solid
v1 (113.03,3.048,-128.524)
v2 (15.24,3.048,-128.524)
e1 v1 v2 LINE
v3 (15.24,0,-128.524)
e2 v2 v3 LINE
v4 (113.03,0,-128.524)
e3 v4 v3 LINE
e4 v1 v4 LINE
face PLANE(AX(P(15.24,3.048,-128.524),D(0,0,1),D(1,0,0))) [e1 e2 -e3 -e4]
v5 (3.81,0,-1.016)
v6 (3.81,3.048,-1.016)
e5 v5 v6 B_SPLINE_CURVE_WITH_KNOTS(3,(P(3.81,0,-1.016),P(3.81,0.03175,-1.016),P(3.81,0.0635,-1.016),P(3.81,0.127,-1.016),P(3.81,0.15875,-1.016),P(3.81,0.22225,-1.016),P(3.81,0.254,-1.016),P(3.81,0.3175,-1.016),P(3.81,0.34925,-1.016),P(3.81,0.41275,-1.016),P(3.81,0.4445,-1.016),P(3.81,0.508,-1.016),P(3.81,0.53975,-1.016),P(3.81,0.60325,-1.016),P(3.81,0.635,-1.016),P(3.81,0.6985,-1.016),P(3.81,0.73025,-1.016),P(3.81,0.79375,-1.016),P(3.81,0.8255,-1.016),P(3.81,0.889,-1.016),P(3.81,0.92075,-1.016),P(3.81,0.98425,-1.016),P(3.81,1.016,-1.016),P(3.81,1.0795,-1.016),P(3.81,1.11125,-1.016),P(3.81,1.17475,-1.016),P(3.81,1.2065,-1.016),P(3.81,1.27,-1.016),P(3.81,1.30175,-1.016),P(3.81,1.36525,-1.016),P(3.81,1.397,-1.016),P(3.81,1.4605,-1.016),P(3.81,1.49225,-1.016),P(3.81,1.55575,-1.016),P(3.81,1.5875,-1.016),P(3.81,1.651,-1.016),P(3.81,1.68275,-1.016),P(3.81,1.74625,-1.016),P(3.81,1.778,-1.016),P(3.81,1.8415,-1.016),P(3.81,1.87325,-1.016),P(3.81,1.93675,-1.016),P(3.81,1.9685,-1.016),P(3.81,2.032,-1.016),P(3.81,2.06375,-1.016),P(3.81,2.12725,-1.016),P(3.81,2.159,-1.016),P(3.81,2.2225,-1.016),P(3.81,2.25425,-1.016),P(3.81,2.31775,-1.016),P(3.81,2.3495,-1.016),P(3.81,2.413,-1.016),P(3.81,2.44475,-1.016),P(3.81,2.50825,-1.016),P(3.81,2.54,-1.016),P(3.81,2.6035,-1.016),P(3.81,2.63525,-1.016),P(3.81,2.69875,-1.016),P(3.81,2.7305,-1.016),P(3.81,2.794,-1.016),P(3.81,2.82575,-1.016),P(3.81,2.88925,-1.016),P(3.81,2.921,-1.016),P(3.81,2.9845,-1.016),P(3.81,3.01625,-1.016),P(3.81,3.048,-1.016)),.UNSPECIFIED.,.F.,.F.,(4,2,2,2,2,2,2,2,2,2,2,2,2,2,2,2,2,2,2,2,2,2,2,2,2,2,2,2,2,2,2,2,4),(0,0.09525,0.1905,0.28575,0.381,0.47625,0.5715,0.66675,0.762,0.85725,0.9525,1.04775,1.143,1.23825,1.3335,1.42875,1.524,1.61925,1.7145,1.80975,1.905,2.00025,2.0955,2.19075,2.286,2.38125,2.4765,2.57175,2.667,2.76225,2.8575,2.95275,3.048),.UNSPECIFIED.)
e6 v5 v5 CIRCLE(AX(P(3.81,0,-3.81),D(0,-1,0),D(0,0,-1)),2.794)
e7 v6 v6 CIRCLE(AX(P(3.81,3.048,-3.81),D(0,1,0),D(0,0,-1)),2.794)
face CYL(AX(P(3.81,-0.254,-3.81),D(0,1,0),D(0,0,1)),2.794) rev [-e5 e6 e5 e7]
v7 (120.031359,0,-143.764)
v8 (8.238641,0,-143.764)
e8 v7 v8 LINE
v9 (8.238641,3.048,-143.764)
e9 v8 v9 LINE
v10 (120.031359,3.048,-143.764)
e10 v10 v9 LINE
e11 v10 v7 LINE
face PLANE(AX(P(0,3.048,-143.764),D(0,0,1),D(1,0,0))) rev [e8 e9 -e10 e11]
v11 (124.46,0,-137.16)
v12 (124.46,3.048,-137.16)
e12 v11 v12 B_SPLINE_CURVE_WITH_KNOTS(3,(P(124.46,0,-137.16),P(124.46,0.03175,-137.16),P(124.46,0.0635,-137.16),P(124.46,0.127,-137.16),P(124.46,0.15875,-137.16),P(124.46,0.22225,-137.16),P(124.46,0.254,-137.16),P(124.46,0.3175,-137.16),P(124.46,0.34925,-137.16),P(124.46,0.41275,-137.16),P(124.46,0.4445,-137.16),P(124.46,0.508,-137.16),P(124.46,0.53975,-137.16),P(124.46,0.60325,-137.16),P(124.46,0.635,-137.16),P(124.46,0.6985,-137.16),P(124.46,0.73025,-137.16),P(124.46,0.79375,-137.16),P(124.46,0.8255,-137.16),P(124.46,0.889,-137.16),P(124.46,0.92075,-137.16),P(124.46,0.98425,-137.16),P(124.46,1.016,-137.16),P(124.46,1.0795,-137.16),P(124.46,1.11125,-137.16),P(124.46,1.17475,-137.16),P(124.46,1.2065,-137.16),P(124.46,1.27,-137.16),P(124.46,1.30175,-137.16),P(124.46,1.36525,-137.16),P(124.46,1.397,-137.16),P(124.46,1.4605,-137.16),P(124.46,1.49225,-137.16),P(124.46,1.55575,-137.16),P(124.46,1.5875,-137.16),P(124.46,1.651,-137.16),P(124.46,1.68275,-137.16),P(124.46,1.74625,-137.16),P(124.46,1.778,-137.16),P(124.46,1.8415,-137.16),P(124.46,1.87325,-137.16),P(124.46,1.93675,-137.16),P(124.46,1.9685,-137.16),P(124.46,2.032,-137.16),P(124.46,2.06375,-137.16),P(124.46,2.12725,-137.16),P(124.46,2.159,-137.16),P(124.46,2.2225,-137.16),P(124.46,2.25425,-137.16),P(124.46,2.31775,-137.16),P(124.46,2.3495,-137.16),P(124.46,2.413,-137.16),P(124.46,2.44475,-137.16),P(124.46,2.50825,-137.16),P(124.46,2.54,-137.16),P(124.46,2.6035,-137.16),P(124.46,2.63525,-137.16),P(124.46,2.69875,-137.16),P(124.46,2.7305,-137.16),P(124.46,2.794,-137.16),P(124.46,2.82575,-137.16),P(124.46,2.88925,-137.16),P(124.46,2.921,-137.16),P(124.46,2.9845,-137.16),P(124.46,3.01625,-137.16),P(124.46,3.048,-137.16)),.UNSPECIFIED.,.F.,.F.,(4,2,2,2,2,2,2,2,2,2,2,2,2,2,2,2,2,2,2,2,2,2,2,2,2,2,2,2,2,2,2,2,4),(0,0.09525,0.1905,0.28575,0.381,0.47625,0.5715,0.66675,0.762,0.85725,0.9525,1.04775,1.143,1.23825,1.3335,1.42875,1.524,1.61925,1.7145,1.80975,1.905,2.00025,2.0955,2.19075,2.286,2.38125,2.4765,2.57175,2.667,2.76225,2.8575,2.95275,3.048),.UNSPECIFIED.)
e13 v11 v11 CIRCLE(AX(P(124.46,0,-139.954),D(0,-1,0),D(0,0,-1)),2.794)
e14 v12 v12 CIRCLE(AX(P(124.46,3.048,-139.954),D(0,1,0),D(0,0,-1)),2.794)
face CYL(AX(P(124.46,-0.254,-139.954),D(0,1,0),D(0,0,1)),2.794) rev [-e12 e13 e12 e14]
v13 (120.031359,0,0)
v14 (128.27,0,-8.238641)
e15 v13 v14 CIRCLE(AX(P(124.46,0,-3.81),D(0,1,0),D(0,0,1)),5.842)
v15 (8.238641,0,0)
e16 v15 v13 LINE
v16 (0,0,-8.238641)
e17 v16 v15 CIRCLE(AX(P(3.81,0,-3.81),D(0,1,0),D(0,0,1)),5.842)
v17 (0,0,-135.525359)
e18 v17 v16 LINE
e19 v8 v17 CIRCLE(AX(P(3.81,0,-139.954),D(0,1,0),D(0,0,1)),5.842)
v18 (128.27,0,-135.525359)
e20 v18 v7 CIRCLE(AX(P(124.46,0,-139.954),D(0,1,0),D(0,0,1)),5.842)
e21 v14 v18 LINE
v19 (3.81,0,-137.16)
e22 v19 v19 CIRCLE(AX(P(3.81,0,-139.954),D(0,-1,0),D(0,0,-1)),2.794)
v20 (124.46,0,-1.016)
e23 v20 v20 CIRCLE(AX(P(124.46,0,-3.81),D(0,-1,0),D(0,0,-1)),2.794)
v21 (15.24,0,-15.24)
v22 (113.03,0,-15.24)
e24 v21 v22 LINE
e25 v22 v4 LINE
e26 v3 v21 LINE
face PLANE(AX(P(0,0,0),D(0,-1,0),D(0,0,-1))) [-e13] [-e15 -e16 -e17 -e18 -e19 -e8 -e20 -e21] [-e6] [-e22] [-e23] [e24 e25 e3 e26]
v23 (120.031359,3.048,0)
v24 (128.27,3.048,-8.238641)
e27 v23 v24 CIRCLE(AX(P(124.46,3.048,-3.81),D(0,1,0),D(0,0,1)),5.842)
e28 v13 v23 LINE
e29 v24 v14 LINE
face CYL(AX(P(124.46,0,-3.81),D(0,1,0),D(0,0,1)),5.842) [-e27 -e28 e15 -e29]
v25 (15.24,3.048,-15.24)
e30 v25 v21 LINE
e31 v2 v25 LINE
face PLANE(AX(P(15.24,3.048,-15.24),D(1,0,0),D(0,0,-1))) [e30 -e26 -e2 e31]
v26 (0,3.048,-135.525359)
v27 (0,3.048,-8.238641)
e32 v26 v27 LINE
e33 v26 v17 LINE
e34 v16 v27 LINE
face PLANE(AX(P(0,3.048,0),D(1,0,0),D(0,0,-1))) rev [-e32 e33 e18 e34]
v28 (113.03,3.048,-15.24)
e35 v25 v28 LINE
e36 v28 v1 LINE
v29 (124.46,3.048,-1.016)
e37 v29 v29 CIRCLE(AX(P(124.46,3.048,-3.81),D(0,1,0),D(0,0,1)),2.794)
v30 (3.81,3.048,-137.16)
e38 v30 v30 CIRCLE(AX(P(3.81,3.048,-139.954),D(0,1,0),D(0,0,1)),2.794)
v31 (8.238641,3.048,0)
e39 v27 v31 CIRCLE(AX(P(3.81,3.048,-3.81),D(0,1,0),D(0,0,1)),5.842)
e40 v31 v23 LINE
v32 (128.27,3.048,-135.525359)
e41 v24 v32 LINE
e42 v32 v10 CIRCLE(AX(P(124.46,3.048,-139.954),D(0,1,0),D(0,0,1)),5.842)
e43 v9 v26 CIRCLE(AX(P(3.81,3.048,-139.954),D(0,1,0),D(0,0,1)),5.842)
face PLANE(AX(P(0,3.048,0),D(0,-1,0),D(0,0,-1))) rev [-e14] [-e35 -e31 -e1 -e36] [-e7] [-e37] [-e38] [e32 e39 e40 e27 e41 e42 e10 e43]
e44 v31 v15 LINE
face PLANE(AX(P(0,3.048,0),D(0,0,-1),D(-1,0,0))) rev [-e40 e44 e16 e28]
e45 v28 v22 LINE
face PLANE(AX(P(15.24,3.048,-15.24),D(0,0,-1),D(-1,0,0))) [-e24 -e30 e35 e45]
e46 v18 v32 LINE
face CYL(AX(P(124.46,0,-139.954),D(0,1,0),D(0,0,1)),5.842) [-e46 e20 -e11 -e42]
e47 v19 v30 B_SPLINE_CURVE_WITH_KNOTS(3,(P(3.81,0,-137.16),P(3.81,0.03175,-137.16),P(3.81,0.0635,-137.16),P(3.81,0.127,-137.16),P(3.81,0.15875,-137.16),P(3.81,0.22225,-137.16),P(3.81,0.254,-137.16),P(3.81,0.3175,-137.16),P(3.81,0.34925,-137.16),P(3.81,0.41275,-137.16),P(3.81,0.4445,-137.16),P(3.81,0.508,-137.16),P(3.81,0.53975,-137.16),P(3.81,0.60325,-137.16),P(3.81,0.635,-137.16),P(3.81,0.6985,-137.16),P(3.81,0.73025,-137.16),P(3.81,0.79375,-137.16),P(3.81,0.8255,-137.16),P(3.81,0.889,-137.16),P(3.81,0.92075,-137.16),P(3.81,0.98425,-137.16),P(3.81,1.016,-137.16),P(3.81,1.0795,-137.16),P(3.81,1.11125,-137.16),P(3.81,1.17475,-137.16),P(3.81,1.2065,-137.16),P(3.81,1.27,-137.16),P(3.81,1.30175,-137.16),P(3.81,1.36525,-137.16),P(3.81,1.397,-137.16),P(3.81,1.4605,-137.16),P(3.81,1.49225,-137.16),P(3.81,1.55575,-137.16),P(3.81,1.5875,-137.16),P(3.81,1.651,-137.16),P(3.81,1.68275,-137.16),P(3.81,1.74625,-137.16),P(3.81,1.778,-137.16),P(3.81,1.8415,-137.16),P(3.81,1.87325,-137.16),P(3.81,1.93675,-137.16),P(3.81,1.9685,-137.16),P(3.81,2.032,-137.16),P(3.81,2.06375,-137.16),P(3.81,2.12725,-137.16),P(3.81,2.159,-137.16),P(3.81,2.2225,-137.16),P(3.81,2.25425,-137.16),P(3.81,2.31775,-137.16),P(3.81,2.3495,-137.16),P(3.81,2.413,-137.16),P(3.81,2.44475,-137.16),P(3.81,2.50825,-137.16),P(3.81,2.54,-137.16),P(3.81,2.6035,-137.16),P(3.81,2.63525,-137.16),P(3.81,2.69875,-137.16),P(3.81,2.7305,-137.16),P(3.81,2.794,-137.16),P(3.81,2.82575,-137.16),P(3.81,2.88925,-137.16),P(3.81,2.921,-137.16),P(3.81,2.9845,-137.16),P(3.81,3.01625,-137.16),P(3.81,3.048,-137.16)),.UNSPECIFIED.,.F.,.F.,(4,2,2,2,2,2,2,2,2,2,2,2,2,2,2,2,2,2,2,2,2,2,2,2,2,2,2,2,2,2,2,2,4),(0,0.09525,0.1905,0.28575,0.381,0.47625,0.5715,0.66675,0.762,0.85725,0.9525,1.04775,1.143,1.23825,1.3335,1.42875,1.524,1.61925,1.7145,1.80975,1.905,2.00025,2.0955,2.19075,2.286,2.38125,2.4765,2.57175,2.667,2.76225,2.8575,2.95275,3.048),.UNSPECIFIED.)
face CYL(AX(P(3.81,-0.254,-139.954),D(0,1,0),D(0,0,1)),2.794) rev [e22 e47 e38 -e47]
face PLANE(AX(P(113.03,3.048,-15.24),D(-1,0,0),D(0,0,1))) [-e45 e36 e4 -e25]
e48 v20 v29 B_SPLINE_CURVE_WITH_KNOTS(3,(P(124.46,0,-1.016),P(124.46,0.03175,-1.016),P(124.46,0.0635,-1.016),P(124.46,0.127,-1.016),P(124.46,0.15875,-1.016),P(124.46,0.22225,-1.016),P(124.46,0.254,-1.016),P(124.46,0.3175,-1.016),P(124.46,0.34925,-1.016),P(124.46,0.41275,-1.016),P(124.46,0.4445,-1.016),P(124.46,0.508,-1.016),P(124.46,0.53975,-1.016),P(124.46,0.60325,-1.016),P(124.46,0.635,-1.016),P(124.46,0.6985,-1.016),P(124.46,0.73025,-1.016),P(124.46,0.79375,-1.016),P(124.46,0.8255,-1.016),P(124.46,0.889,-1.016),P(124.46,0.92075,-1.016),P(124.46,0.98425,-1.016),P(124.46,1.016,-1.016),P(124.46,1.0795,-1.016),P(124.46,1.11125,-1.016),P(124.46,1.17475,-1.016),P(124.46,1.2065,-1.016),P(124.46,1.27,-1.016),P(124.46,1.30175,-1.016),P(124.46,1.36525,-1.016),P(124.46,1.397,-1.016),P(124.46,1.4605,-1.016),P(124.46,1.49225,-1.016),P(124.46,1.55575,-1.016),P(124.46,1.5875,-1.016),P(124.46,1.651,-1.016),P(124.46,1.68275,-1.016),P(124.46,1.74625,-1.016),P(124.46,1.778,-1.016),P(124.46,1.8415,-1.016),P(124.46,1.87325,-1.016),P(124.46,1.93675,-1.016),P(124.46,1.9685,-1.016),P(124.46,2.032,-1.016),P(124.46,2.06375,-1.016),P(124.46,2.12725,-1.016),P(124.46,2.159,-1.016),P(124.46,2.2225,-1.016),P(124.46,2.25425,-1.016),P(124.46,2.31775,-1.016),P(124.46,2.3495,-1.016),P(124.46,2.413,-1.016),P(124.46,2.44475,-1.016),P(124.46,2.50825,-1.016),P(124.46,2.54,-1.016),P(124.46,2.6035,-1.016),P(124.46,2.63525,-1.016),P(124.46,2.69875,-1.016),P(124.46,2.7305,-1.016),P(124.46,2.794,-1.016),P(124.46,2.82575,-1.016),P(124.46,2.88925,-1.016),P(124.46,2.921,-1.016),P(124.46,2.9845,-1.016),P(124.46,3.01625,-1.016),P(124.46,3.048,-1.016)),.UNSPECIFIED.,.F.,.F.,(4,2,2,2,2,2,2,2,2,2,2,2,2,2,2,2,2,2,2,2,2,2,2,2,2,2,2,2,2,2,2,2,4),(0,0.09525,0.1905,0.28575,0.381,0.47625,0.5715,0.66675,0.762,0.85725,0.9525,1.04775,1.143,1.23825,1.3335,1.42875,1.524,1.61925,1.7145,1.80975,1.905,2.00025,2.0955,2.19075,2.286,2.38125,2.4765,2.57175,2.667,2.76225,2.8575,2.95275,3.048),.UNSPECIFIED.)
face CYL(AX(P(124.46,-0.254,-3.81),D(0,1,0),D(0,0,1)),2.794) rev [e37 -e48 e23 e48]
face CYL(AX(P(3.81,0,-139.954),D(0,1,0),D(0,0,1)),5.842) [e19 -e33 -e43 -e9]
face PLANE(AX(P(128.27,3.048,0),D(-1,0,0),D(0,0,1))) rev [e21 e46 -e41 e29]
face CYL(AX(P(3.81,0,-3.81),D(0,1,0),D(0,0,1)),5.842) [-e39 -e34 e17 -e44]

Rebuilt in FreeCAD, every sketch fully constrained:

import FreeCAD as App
import Part
import Sketcher
Q = App.Units.Quantity


def add_polygon(sketch, points):
    """Adds a closed chain of lines whose ends are joined by coincident constraints."""
    first, n = sketch.GeometryCount, len(points)
    for a, b in zip(points, points[1:] + points[:1]):
        sketch.addGeometry(Part.LineSegment(App.Vector(*a, 0), App.Vector(*b, 0)), False)
    for i in range(n):
        sketch.addConstraint(Sketcher.Constraint("Coincident", first + i, 2, first + (i + 1) % n, 1))

doc = App.newDocument("Part")
params = doc.addObject("Spreadsheet::Sheet", "Params")
for row, (alias, value) in enumerate([
    ("sketch1_width", "5.05 in"),
    ("sketch1_width2", "3.85 in"),
    ("sketch1_height", "5.66 in"),
    ("sketch1_height2", "4.46 in"),
    ("pad1_length", "0.12 in"),
    ("sketch2_diameter", "0.22 in"),
    ("pocket1_length", "0.13 in"),
    ("sketch3_diameter", "0.46 in"),
    ("sketch3_diameter2", "0.22 in"),
    ("pad2_length", "0.12 in"),
], start=1):
    params.set(f"A{row}", alias)
    params.set(f"B{row}", "=" + value)
    params.setAlias(f"B{row}", alias)

body = doc.addObject("PartDesign::Body", "Body")

# Sketch on XZ plane
sketch1 = body.newObject("Sketcher::SketchObject", "Sketch")
sketch1.AttachmentSupport = (doc.getObject("XZ_Plane"), [""])
sketch1.MapMode = "FlatFace"
add_polygon(sketch1, [(0, -144), (0, 0), (128, 0), (128, -144)])  # lines 0-3
add_polygon(sketch1, [(113, -15), (15, -15), (15, -129), (113, -129)])  # lines 4-7
sketch1.addConstraint([
    Sketcher.Constraint("Vertical", 0),
    Sketcher.Constraint("Horizontal", 1),
    Sketcher.Constraint("Vertical", 2),
    Sketcher.Constraint("Horizontal", 3),
    Sketcher.Constraint("Horizontal", 4),
    Sketcher.Constraint("Vertical", 5),
    Sketcher.Constraint("Horizontal", 6),
    Sketcher.Constraint("Vertical", 7),
    Sketcher.Constraint("Coincident", 0, 2, -1, 1),
    Sketcher.Constraint("DistanceX", 1, 1, 1, 2, Q("5.05 in")),
    Sketcher.Constraint("DistanceX", 4, 2, 4, 1, Q("3.85 in")),
    Sketcher.Constraint("DistanceY", 0, 1, 0, 2, Q("5.66 in")),
    Sketcher.Constraint("DistanceY", 5, 2, 5, 1, Q("4.46 in")),
    Sketcher.Constraint("DistanceX", -1, 1, 4, 2, Q("0.6 in")),
    Sketcher.Constraint("DistanceY", 4, 2, -1, 1, Q("0.6 in")),
])
sketch1.setExpression("Constraints[17]", "Params.sketch1_width")
sketch1.setExpression("Constraints[18]", "Params.sketch1_width2")
sketch1.setExpression("Constraints[19]", "Params.sketch1_height")
sketch1.setExpression("Constraints[20]", "Params.sketch1_height2")
pad1 = body.newObject("PartDesign::Pad", "Pad")
pad1.Profile = sketch1
pad1.setExpression("Length", "Params.pad1_length")
pad1.Reversed = True

# Sketch on XZ plane
sketch2 = body.newObject("Sketcher::SketchObject", "Sketch001")
sketch2.AttachmentSupport = (doc.getObject("XZ_Plane"), [""])
sketch2.MapMode = "FlatFace"
sketch2.AttachmentOffset = App.Placement(App.Vector(0, 0, -0.12 * 25.4), App.Rotation())
sketch2.addGeometry([
    Part.Circle(App.Vector(3.8, -140, 0), App.Vector(0, 0, 1), 2.8),
    Part.Circle(App.Vector(124.5, -140, 0), App.Vector(0, 0, 1), 2.8),
    Part.Circle(App.Vector(124.5, -3.8, 0), App.Vector(0, 0, 1), 2.8),
    Part.Circle(App.Vector(3.8, -3.8, 0), App.Vector(0, 0, 1), 2.8),
], False)
sketch2.addConstraint([
    Sketcher.Constraint("Equal", 0, 1),
    Sketcher.Constraint("Equal", 1, 2),
    Sketcher.Constraint("Equal", 2, 3),
    Sketcher.Constraint("Horizontal", 0, 3, 1, 3),
    Sketcher.Constraint("Horizontal", 2, 3, 3, 3),
    Sketcher.Constraint("Vertical", 1, 3, 2, 3),
    Sketcher.Constraint("Vertical", 0, 3, 3, 3),
    Sketcher.Constraint("Diameter", 0, Q("0.22 in")),
    Sketcher.Constraint("DistanceX", -1, 1, 1, 3, Q("4.9 in")),
    Sketcher.Constraint("DistanceX", -1, 1, 0, 3, Q("0.15 in")),
    Sketcher.Constraint("DistanceY", 0, 3, -1, 1, Q("5.51 in")),
    Sketcher.Constraint("DistanceY", 2, 3, -1, 1, Q("0.15 in")),
])
sketch2.setExpression("Constraints[7]", "Params.sketch2_diameter")
pocket1 = body.newObject("PartDesign::Pocket", "Pocket")
pocket1.Profile = sketch2
pocket1.setExpression("Length", "Params.pocket1_length")
pocket1.Reversed = True

# Sketch on XZ plane
sketch3 = body.newObject("Sketcher::SketchObject", "Sketch002")
sketch3.AttachmentSupport = (doc.getObject("XZ_Plane"), [""])
sketch3.MapMode = "FlatFace"
sketch3.AttachmentOffset = App.Placement(App.Vector(0, 0, -0.12 * 25.4), App.Rotation())
sketch3.addGeometry([
    Part.Circle(App.Vector(3.8, -140, 0), App.Vector(0, 0, 1), 5.8),  # 0
    Part.Circle(App.Vector(3.8, -140, 0), App.Vector(0, 0, 1), 2.8),  # 1
    Part.Circle(App.Vector(124.5, -140, 0), App.Vector(0, 0, 1), 5.8),  # 2
    Part.Circle(App.Vector(124.5, -140, 0), App.Vector(0, 0, 1), 2.8),  # 3
    Part.Circle(App.Vector(124.5, -3.8, 0), App.Vector(0, 0, 1), 5.8),  # 4
    Part.Circle(App.Vector(124.5, -3.8, 0), App.Vector(0, 0, 1), 2.8),  # 5
    Part.Circle(App.Vector(3.8, -3.8, 0), App.Vector(0, 0, 1), 5.8),  # 6
    Part.Circle(App.Vector(3.8, -3.8, 0), App.Vector(0, 0, 1), 2.8),  # 7
], False)
sketch3.addConstraint([
    Sketcher.Constraint("Coincident", 1, 3, 0, 3),
    Sketcher.Constraint("Coincident", 3, 3, 2, 3),
    Sketcher.Constraint("Coincident", 5, 3, 4, 3),
    Sketcher.Constraint("Coincident", 7, 3, 6, 3),
    Sketcher.Constraint("Equal", 0, 2),
    Sketcher.Constraint("Equal", 1, 3),
    Sketcher.Constraint("Equal", 2, 4),
    Sketcher.Constraint("Equal", 3, 5),
    Sketcher.Constraint("Equal", 4, 6),
    Sketcher.Constraint("Equal", 5, 7),
    Sketcher.Constraint("Horizontal", 1, 3, 2, 3),
    Sketcher.Constraint("Horizontal", 5, 3, 6, 3),
    Sketcher.Constraint("Vertical", 3, 3, 4, 3),
    Sketcher.Constraint("Vertical", 1, 3, 6, 3),
    Sketcher.Constraint("Diameter", 0, Q("0.46 in")),
    Sketcher.Constraint("Diameter", 1, Q("0.22 in")),
    Sketcher.Constraint("DistanceX", -1, 1, 2, 3, Q("4.9 in")),
    Sketcher.Constraint("DistanceX", -1, 1, 0, 3, Q("0.15 in")),
    Sketcher.Constraint("DistanceY", 0, 3, -1, 1, Q("5.51 in")),
    Sketcher.Constraint("DistanceY", 4, 3, -1, 1, Q("0.15 in")),
])
sketch3.setExpression("Constraints[14]", "Params.sketch3_diameter")
sketch3.setExpression("Constraints[15]", "Params.sketch3_diameter2")
pad2 = body.newObject("PartDesign::Pad", "Pad001")
pad2.Profile = sketch3
pad2.setExpression("Length", "Params.pad2_length")

doc.recompute()
